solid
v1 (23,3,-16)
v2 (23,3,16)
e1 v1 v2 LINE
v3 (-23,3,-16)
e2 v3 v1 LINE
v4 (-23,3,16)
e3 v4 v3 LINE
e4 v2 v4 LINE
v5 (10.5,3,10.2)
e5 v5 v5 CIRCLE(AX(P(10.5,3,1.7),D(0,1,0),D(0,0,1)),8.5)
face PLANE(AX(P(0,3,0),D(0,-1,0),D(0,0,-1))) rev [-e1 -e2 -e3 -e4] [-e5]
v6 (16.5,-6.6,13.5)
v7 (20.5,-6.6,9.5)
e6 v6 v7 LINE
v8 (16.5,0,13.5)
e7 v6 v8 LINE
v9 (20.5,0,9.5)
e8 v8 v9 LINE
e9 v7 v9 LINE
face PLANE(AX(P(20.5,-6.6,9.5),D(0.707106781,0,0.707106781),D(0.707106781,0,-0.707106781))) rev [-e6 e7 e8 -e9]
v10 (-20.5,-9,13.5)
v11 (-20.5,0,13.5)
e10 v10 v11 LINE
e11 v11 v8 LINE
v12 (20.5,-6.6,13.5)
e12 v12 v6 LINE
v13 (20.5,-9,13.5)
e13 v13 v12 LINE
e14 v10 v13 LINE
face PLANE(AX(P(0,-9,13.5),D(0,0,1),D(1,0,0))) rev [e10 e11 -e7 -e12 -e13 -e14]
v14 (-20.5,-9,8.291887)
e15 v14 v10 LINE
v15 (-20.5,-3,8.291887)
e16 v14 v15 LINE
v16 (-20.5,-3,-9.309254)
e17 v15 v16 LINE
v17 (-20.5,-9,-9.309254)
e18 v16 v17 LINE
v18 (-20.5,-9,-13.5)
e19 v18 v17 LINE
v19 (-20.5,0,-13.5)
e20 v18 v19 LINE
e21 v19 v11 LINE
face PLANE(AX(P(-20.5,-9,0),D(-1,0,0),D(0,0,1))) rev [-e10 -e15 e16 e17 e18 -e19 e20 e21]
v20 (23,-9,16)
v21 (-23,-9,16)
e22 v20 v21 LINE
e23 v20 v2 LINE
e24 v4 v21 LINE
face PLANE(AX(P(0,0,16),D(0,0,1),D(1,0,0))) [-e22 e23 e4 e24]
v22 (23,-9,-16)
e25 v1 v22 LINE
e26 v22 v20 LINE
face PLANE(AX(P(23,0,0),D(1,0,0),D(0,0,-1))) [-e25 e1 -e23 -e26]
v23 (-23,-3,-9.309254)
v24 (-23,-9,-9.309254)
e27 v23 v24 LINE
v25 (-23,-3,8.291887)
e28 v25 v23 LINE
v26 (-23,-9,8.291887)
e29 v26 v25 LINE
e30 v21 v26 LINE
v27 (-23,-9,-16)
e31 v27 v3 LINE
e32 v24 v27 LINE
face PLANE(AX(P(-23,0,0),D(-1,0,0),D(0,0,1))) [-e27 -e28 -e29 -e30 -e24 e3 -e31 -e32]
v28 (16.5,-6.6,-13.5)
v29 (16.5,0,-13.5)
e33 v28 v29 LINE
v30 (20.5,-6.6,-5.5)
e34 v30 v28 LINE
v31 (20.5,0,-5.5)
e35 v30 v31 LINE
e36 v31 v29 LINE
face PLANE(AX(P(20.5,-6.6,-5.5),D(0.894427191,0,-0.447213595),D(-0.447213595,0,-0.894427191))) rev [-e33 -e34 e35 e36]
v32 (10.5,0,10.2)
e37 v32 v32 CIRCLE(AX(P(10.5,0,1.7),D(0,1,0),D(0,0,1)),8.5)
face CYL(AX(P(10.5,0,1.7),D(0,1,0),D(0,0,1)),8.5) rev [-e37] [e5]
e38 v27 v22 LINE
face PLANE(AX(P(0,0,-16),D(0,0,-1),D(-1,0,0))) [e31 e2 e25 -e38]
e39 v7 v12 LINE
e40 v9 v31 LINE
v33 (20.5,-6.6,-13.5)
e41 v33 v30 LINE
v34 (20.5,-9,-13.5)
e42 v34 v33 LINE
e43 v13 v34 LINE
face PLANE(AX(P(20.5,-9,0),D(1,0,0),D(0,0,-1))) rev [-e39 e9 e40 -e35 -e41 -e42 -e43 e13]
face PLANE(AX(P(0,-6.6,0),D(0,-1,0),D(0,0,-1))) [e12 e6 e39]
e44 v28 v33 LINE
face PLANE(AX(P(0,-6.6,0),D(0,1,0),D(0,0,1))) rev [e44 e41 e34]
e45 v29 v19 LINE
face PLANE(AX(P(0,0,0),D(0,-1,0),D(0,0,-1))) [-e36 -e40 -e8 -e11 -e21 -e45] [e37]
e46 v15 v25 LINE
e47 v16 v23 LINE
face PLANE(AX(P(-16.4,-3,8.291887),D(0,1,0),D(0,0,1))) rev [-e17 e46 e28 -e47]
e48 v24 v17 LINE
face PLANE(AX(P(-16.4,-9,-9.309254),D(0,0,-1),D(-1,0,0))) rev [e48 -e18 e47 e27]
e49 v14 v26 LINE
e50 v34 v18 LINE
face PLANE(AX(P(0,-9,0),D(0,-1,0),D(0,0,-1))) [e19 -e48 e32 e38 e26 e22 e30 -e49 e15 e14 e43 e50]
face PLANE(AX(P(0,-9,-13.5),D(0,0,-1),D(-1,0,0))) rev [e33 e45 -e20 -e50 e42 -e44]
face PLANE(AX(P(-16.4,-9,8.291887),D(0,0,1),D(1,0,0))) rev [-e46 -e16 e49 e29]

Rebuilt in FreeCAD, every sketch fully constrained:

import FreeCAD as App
import Part
import Sketcher
Q = App.Units.Quantity


def add_polygon(sketch, points):
    """Adds a closed chain of lines whose ends are joined by coincident constraints."""
    first, n = sketch.GeometryCount, len(points)
    for a, b in zip(points, points[1:] + points[:1]):
        sketch.addGeometry(Part.LineSegment(App.Vector(*a, 0), App.Vector(*b, 0)), False)
    for i in range(n):
        sketch.addConstraint(Sketcher.Constraint("Coincident", first + i, 2, first + (i + 1) % n, 1))

doc = App.newDocument("Part")
body = doc.addObject("PartDesign::Body", "Body")

# Sketch on XZ plane
sketch1 = body.newObject("Sketcher::SketchObject", "Sketch")
sketch1.AttachmentSupport = (doc.getObject("XZ_Plane"), [""])
sketch1.MapMode = "FlatFace"
add_polygon(sketch1, [(-20, -13), (-20, 13), (20, 13), (20, -13)])  # lines 0-3
sketch1.addConstraint([
    Sketcher.Constraint("Vertical", 0),
    Sketcher.Constraint("Horizontal", 1),
    Sketcher.Constraint("Vertical", 2),
    Sketcher.Constraint("Horizontal", 3),
    Sketcher.Constraint("Symmetric", 0, 2, 2, 2, -1, 1),
    Sketcher.Constraint("DistanceX", 1, 1, 1, 2, Q("40 mm")),
    Sketcher.Constraint("DistanceY", 0, 1, 0, 2, Q("26 mm")),
])
pad1 = body.newObject("PartDesign::Pad", "Pad")
pad1.Profile = sketch1
pad1.Length = 3
pad1.Reversed = True

# Sketch on XZ plane
sketch2 = body.newObject("Sketcher::SketchObject", "Sketch001")
sketch2.AttachmentSupport = (doc.getObject("XZ_Plane"), [""])
sketch2.MapMode = "FlatFace"
sketch2.AttachmentOffset = App.Placement(App.Vector(0, 0, -3), App.Rotation())
sketch2.addGeometry(Part.Circle(App.Vector(10.5, 1.7, 0), App.Vector(0, 0, 1), 8.5), False)
sketch2.addConstraint([
    Sketcher.Constraint("Diameter", 0, Q("17 mm")),
    Sketcher.Constraint("DistanceX", -1, 1, 0, 3, Q("10.5 mm")),
    Sketcher.Constraint("DistanceY", -1, 1, 0, 3, Q("1.7 mm")),
])
pocket1 = body.newObject("PartDesign::Pocket", "Pocket")
pocket1.Profile = sketch2
pocket1.Length = 3
pocket1.Reversed = True

# Sketch on YZ plane
sketch3 = body.newObject("Sketcher::SketchObject", "Sketch002")
sketch3.AttachmentSupport = (doc.getObject("YZ_Plane"), [""])
sketch3.MapMode = "FlatFace"
sketch3.AttachmentOffset = App.Placement(App.Vector(0, 0, 20), App.Rotation())
add_polygon(sketch3, [(3, 13), (0, 13), (0, -13), (3, -13)])  # lines 0-3
sketch3.addConstraint([
    Sketcher.Constraint("Horizontal", 0),
    Sketcher.Constraint("Vertical", 1),
    Sketcher.Constraint("Horizontal", 2),
    Sketcher.Constraint("Vertical", 3),
    Sketcher.Constraint("Symmetric", 0, 2, 1, 2, -1, 1),
    Sketcher.Constraint("DistanceX", 0, 2, 0, 1, Q("3 mm")),
    Sketcher.Constraint("DistanceY", 1, 2, 1, 1, Q("26 mm")),
])
pad2 = body.newObject("PartDesign::Pad", "Pad001")
pad2.Profile = sketch3
pad2.Length = 3

# Sketch on YZ plane
sketch4 = body.newObject("Sketcher::SketchObject", "Sketch003")
sketch4.AttachmentSupport = (doc.getObject("YZ_Plane"), [""])
sketch4.MapMode = "FlatFace"
sketch4.AttachmentOffset = App.Placement(App.Vector(0, 0, -20), App.Rotation())
add_polygon(sketch4, [(3, -13), (0, -13), (0, 13), (3, 13)])  # lines 0-3
sketch4.addConstraint([
    Sketcher.Constraint("Horizontal", 0),
    Sketcher.Constraint("Vertical", 1),
    Sketcher.Constraint("Horizontal", 2),
    Sketcher.Constraint("Vertical", 3),
    Sketcher.Constraint("Symmetric", 0, 2, 1, 2, -1, 1),
    Sketcher.Constraint("DistanceX", 0, 2, 0, 1, Q("3 mm")),
    Sketcher.Constraint("DistanceY", 1, 1, 1, 2, Q("26 mm")),
])
pad3 = body.newObject("PartDesign::Pad", "Pad002")
pad3.Profile = sketch4
pad3.Length = 3
pad3.Reversed = True

# Sketch on XY plane
sketch5 = body.newObject("Sketcher::SketchObject", "Sketch004")
sketch5.AttachmentSupport = (doc.getObject("XY_Plane"), [""])
sketch5.MapMode = "FlatFace"
sketch5.AttachmentOffset = App.Placement(App.Vector(0, 0, 13), App.Rotation())
add_polygon(sketch5, [(-23, 3), (-23, 0), (23, 0), (23, 3)])  # lines 0-3
sketch5.addConstraint([
    Sketcher.Constraint("Vertical", 0),
    Sketcher.Constraint("Horizontal", 1),
    Sketcher.Constraint("Vertical", 2),
    Sketcher.Constraint("Horizontal", 3),
    Sketcher.Constraint("Symmetric", 0, 2, 1, 2, -1, 1),
    Sketcher.Constraint("DistanceX", 1, 1, 1, 2, Q("46 mm")),
    Sketcher.Constraint("DistanceY", 0, 2, 0, 1, Q("3 mm")),
])
pad4 = body.newObject("PartDesign::Pad", "Pad003")
pad4.Profile = sketch5
pad4.Length = 3

# Sketch on XY plane
sketch6 = body.newObject("Sketcher::SketchObject", "Sketch005")
sketch6.AttachmentSupport = (doc.getObject("XY_Plane"), [""])
sketch6.MapMode = "FlatFace"
sketch6.AttachmentOffset = App.Placement(App.Vector(0, 0, -13), App.Rotation())
add_polygon(sketch6, [(23, 3), (23, 0), (-23, 0), (-23, 3)])  # lines 0-3
sketch6.addConstraint([
    Sketcher.Constraint("Vertical", 0),
    Sketcher.Constraint("Horizontal", 1),
    Sketcher.Constraint("Vertical", 2),
    Sketcher.Constraint("Horizontal", 3),
    Sketcher.Constraint("Symmetric", 0, 2, 1, 2, -1, 1),
    Sketcher.Constraint("DistanceX", 1, 2, 1, 1, Q("46 mm")),
    Sketcher.Constraint("DistanceY", 0, 2, 0, 1, Q("3 mm")),
])
pad5 = body.newObject("PartDesign::Pad", "Pad004")
pad5.Profile = sketch6
pad5.Length = 3
pad5.Reversed = True

# Sketch on XZ plane
sketch7 = body.newObject("Sketcher::SketchObject", "Sketch006")
sketch7.AttachmentSupport = (doc.getObject("XZ_Plane"), [""])
sketch7.MapMode = "FlatFace"
add_polygon(sketch7, [(23, 16), (-23, 16), (-23, -16), (23, -16)])  # lines 0-3
add_polygon(sketch7, [(20.5, -13.5), (-20.5, -13.5), (-20.5, 13.5), (20.5, 13.5)])  # lines 4-7
sketch7.addConstraint([
    Sketcher.Constraint("Horizontal", 0),
    Sketcher.Constraint("Vertical", 1),
    Sketcher.Constraint("Horizontal", 2),
    Sketcher.Constraint("Vertical", 3),
    Sketcher.Constraint("Horizontal", 4),
    Sketcher.Constraint("Vertical", 5),
    Sketcher.Constraint("Horizontal", 6),
    Sketcher.Constraint("Vertical", 7),
    Sketcher.Constraint("Symmetric", 0, 2, 2, 2, -1, 1),
    Sketcher.Constraint("Symmetric", 4, 2, 6, 2, -1, 1),
    Sketcher.Constraint("DistanceX", 0, 2, 0, 1, Q("46 mm")),
    Sketcher.Constraint("DistanceX", 4, 2, 4, 1, Q("41 mm")),
    Sketcher.Constraint("DistanceY", 1, 2, 1, 1, Q("32 mm")),
    Sketcher.Constraint("DistanceY", 5, 1, 5, 2, Q("27 mm")),
])
pad6 = body.newObject("PartDesign::Pad", "Pad005")
pad6.Profile = sketch7
pad6.Length = 9

# Sketch on XZ plane
sketch8 = body.newObject("Sketcher::SketchObject", "Sketch007")
sketch8.AttachmentSupport = (doc.getObject("XZ_Plane"), [""])
sketch8.MapMode = "FlatFace"
add_polygon(sketch8, [(16.5, 13.5), (20.5, 9.5), (20.5, 13.5)])  # lines 0-2
add_polygon(sketch8, [(20.5, -5.5), (16.5, -13.5), (20.5, -13.5)])  # lines 3-5
sketch8.addConstraint([
    Sketcher.Constraint("Vertical", 1),
    Sketcher.Constraint("Horizontal", 2),
    Sketcher.Constraint("Horizontal", 4),
    Sketcher.Constraint("Vertical", 5),
    Sketcher.Constraint("Symmetric", 2, 2, 3, 2, -1),
    Sketcher.Constraint("Vertical", 1, 2, 4, 2),
    Sketcher.Constraint("Equal", 4, 1),
    Sketcher.Constraint("DistanceX", 2, 2, 2, 1, Q("4 mm")),
    Sketcher.Constraint("DistanceY", 5, 1, 5, 2, Q("8 mm")),
    Sketcher.Constraint("DistanceY", 3, 2, 0, 2, Q("23 mm")),
    Sketcher.Constraint("DistanceX", -1, 1, 0, 2, Q("20.5 mm")),
])
pad7 = body.newObject("PartDesign::Pad", "Pad006")
pad7.Profile = sketch8
pad7.Length = 6.6

# Sketch on YZ plane
sketch9 = body.newObject("Sketcher::SketchObject", "Sketch008")
sketch9.AttachmentSupport = (doc.getObject("YZ_Plane"), [""])
sketch9.MapMode = "FlatFace"
sketch9.AttachmentOffset = App.Placement(App.Vector(0, 0, -23), App.Rotation())
add_polygon(sketch9, [(-3, -9.309254), (-9, -9.309254), (-9, 8.291887), (-3, 8.291887)])  # lines 0-3
sketch9.addConstraint([
    Sketcher.Constraint("Horizontal", 0),
    Sketcher.Constraint("Vertical", 1),
    Sketcher.Constraint("Horizontal", 2),
    Sketcher.Constraint("Vertical", 3),
    Sketcher.Constraint("DistanceX", 0, 2, 0, 1, Q("6 mm")),
    Sketcher.Constraint("DistanceX", 0, 2, -1, 1, Q("9 mm")),
    Sketcher.Constraint("DistanceY", 1, 1, 1, 2, Q("17.601141 mm")),
    Sketcher.Constraint("DistanceY", 0, 2, -1, 1, Q("9.309254 mm")),
])
pocket2 = body.newObject("PartDesign::Pocket", "Pocket001")
pocket2.Profile = sketch9
pocket2.Length = 6.6
pocket2.Reversed = True

doc.recompute()
